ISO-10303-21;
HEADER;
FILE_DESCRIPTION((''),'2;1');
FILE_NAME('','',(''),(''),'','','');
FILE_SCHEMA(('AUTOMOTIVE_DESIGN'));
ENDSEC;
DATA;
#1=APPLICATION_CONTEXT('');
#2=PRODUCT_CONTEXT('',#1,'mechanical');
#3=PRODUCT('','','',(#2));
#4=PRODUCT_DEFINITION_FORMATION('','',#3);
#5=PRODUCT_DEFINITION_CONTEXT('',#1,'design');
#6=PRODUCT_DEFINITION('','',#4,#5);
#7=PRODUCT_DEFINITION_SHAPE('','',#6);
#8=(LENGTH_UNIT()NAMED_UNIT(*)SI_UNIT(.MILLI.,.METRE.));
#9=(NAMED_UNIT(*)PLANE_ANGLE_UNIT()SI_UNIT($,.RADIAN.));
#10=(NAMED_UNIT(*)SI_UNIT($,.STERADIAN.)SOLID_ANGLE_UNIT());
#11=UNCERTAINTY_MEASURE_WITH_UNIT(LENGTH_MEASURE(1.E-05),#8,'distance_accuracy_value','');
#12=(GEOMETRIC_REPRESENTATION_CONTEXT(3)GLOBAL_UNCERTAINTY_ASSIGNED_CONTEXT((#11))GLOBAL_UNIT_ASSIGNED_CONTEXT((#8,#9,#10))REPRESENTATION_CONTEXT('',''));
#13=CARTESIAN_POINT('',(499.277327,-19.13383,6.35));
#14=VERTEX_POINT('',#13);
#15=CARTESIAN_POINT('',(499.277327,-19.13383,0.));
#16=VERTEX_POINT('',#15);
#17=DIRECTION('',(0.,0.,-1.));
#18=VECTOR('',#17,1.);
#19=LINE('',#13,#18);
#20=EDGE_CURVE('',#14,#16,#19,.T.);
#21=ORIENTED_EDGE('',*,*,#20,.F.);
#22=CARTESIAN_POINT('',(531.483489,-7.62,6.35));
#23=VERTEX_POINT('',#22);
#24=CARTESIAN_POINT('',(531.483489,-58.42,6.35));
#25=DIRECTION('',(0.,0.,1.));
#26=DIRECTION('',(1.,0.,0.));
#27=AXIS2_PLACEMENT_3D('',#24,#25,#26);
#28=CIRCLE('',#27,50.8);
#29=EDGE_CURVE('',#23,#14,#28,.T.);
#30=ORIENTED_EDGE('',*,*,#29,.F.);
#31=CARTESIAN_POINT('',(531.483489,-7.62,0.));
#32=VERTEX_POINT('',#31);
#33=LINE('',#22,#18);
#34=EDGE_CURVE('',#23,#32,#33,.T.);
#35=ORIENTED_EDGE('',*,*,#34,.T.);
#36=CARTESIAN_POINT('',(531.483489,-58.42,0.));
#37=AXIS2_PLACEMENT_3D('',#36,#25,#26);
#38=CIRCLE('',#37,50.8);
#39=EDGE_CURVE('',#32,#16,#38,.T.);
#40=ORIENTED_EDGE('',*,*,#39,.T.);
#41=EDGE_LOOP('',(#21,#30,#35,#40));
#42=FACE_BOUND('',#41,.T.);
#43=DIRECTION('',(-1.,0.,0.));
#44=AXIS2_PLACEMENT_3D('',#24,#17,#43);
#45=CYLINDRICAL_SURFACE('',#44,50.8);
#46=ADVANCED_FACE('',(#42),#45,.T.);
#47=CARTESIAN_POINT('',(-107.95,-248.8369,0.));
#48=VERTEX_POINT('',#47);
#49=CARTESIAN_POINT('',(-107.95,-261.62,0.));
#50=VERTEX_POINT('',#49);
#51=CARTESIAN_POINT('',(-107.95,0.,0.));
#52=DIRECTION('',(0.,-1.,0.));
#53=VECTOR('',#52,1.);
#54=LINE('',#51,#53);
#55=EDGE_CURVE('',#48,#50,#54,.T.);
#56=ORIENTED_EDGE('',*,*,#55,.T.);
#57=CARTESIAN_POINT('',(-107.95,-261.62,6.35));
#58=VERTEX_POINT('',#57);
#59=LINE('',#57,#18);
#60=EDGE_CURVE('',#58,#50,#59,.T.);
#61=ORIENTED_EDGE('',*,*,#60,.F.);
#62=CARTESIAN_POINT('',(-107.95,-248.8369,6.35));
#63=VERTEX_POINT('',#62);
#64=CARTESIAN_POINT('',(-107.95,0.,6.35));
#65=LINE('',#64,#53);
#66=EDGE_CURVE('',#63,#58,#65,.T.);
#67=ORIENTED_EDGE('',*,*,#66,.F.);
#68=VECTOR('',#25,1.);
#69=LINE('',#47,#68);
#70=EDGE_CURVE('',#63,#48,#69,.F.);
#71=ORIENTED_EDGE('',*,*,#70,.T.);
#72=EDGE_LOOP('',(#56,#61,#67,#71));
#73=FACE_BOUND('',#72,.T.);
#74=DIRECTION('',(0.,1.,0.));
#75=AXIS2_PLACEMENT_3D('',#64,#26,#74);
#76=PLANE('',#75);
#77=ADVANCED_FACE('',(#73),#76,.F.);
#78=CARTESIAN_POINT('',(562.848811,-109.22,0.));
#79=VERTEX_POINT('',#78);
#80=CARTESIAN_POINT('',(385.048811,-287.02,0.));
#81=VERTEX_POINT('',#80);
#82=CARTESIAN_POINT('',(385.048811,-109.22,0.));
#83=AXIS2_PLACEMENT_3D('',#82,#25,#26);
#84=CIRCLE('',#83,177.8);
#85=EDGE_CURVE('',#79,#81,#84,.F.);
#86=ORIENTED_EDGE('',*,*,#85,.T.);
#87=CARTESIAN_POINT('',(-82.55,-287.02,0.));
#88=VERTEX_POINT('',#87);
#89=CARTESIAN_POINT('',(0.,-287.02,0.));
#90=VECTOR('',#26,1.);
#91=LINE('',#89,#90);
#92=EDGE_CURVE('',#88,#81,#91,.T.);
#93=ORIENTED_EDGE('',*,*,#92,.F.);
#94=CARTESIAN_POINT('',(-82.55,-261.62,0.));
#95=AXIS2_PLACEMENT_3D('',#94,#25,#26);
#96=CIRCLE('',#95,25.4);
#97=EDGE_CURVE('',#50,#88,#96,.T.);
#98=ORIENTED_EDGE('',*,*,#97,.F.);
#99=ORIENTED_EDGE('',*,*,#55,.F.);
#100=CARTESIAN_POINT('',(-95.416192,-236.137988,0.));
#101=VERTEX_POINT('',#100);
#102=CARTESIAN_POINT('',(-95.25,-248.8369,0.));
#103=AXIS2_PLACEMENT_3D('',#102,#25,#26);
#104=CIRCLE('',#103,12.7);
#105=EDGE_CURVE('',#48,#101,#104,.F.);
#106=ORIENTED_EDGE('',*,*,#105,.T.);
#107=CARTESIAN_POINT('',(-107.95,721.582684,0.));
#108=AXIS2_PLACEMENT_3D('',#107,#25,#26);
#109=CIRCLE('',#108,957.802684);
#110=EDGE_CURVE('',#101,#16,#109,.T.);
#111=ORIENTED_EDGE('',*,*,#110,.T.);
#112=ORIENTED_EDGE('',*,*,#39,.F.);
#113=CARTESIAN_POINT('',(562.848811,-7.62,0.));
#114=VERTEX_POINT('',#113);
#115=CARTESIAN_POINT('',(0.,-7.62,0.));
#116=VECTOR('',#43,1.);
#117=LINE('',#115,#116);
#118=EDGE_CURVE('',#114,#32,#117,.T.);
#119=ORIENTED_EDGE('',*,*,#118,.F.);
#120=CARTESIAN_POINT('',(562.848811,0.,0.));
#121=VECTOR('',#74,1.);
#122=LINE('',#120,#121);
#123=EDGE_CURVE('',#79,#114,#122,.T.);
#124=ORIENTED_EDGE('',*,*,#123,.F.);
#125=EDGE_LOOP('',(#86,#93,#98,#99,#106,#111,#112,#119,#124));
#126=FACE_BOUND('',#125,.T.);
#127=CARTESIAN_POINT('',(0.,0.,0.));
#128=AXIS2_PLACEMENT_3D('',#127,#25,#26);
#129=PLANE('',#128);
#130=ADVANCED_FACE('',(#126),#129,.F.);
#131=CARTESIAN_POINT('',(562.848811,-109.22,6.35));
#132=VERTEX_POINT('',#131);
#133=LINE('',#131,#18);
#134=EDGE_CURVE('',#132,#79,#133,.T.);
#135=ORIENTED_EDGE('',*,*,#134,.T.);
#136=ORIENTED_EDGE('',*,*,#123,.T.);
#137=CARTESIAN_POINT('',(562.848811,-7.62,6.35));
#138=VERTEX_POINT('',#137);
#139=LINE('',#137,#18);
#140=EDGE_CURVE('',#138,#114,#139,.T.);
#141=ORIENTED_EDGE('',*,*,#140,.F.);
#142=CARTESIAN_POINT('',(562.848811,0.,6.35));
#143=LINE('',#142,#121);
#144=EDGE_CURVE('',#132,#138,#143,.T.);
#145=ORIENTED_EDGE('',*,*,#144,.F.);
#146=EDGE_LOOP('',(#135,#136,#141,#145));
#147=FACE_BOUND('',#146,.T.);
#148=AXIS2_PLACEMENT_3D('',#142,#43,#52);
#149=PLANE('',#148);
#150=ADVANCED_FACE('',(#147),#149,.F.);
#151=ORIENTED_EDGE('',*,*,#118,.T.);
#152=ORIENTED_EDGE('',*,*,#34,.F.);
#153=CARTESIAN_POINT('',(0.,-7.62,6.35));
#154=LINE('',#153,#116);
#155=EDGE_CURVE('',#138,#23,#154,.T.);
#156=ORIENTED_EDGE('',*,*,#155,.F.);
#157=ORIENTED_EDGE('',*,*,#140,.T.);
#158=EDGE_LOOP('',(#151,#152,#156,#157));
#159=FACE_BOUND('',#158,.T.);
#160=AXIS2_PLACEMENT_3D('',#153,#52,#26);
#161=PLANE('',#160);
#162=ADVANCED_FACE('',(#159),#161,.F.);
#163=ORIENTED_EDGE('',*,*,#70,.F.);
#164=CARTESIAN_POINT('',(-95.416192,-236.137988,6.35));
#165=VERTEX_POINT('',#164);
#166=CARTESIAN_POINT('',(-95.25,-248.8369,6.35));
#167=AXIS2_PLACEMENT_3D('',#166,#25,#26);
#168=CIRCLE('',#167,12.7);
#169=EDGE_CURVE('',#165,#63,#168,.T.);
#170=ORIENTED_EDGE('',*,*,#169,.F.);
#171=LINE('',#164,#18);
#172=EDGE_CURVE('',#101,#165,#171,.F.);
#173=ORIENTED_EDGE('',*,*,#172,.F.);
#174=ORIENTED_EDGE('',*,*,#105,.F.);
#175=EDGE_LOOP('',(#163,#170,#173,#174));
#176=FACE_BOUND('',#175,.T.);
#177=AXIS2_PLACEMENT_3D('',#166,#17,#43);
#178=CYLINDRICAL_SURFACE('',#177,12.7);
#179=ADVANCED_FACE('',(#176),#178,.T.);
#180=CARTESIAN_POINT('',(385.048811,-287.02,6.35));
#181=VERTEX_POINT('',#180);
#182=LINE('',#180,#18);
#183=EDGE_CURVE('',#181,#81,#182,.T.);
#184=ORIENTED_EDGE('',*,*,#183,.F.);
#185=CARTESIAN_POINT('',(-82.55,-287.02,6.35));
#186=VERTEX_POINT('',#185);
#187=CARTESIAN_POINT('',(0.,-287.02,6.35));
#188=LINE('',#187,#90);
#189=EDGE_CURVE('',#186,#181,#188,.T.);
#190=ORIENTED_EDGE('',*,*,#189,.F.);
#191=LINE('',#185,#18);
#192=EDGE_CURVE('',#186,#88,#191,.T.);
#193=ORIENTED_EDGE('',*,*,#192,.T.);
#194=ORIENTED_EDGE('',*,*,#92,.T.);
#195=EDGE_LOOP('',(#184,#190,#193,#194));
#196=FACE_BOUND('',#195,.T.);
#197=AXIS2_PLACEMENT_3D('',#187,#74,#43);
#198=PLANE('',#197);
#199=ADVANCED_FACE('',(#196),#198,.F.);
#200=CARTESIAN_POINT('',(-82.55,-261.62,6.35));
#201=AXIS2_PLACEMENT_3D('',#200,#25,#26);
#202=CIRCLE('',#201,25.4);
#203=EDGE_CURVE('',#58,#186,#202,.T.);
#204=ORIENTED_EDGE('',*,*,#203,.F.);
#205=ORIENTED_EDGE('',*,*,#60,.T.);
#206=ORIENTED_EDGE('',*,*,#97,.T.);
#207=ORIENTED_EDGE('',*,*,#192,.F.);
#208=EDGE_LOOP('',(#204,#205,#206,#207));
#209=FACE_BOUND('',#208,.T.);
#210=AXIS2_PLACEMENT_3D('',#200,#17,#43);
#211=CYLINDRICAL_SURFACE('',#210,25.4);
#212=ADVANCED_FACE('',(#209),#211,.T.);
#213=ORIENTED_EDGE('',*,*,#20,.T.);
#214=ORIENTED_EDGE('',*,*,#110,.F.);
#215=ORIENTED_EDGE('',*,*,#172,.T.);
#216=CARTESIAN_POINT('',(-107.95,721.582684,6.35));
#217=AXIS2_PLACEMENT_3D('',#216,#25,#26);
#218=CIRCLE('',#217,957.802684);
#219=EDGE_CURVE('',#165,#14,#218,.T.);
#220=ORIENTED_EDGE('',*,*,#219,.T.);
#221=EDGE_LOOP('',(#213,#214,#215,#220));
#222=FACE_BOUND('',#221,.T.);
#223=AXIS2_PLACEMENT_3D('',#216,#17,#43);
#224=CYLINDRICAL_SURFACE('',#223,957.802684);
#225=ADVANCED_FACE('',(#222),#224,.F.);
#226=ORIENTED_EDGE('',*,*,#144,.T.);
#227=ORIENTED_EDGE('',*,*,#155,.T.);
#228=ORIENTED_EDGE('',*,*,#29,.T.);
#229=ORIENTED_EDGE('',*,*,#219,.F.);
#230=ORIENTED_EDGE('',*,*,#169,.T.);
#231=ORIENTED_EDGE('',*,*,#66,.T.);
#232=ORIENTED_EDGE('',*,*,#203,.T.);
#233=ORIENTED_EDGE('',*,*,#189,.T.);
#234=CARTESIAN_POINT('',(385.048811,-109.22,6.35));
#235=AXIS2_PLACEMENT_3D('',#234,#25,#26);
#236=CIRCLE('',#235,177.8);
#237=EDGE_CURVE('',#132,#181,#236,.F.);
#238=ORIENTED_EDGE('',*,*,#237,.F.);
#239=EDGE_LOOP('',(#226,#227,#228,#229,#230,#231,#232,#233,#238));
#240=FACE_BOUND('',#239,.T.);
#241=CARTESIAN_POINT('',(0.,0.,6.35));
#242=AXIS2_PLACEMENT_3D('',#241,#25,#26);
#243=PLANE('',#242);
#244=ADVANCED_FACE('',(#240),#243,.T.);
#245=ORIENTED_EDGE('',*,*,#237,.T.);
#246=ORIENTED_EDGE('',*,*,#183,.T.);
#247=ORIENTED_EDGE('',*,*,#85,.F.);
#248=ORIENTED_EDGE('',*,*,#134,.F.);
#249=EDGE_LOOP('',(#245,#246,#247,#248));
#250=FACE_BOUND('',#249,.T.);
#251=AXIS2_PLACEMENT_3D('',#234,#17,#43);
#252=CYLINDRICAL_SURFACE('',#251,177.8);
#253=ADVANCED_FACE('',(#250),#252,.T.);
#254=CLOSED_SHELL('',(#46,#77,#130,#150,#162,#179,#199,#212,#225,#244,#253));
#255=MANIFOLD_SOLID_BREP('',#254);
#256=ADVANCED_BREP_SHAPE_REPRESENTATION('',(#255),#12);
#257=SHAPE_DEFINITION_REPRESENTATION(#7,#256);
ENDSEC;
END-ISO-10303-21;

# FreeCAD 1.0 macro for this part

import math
import FreeCAD as App
import Part
import Sketcher
Q = App.Units.Quantity


def edges_at(feature, points):
    """Names of the edges that pass closest to the given points."""
    edges = feature.Shape.Edges
    near = lambda p: min(range(len(edges)), key=lambda i: edges[i].distToShape(Part.Vertex(*p))[0])
    return sorted({f"Edge{near(p) + 1}" for p in points})

doc = App.newDocument("Part")
body = doc.addObject("PartDesign::Body", "Body")

# Sketch on XY plane
sketch1 = doc.addObject("Sketcher::SketchObject", "Sketch")
body.addObject(sketch1)
sketch1.AttachmentSupport = (doc.XY_Plane, [""])
sketch1.MapMode = "FlatFace"
sketch1.addGeometry(Part.LineSegment(App.Vector(-108, -236, 0), App.Vector(-108, -262, 0)), False)
sketch1.addGeometry(Part.ArcOfCircle(Part.Circle(App.Vector(-83, -262, 0), App.Vector(0, 0, 1), 25), math.radians(180), math.radians(270)), False)
sketch1.addGeometry(Part.LineSegment(App.Vector(-83, -287, 0), App.Vector(385, -287, 0)), False)
sketch1.addGeometry(Part.ArcOfCircle(Part.Circle(App.Vector(385, -109, 0), App.Vector(0, 0, 1), 178), math.radians(-90), math.radians(0)), False)
sketch1.addGeometry(Part.LineSegment(App.Vector(563, -109, 0), App.Vector(563, -8, 0)), False)
sketch1.addGeometry(Part.LineSegment(App.Vector(563, -8, 0), App.Vector(531, -8, 0)), False)
sketch1.addGeometry(Part.ArcOfCircle(Part.Circle(App.Vector(531, -58, 0), App.Vector(0, 0, 1), 51), math.radians(90), math.radians(129)), False)
sketch1.addGeometry(Part.ArcOfCircle(Part.Circle(App.Vector(-108, 722, 0), App.Vector(0, 0, 1), 958), math.radians(-90), math.radians(-51)), False)
sketch1.addConstraint(Sketcher.Constraint("Tangent", 0, 2, 1, 1))
sketch1.addConstraint(Sketcher.Constraint("Tangent", 1, 2, 2, 1))
sketch1.addConstraint(Sketcher.Constraint("Tangent", 2, 2, 3, 1))
sketch1.addConstraint(Sketcher.Constraint("Tangent", 3, 2, 4, 1))
sketch1.addConstraint(Sketcher.Constraint("Coincident", 4, 2, 5, 1))
sketch1.addConstraint(Sketcher.Constraint("Tangent", 5, 2, 6, 1))
sketch1.addConstraint(Sketcher.Constraint("Tangent", 6, 2, 7, 2))
sketch1.addConstraint(Sketcher.Constraint("Coincident", 7, 1, 0, 1))
sketch1.addConstraint(Sketcher.Constraint("Vertical", 0))
sketch1.addConstraint(Sketcher.Constraint("Horizontal", 2))
sketch1.addConstraint(Sketcher.Constraint("Vertical", 4))
sketch1.addConstraint(Sketcher.Constraint("Horizontal", 5))
sketch1.addConstraint(Sketcher.Constraint("Vertical", 7, 3, 0, 2))
sketch1.addConstraint(Sketcher.Constraint("Radius", 1, Q("1 in")))
sketch1.addConstraint(Sketcher.Constraint("Radius", 3, Q("7 in")))
sketch1.addConstraint(Sketcher.Constraint("Radius", 6, Q("2 in")))
sketch1.addConstraint(Sketcher.Constraint("DistanceY", 0, 2, 0, 1, Q("1 in")))
sketch1.addConstraint(Sketcher.Constraint("DistanceY", 4, 1, 4, 2, Q("4 in")))
sketch1.addConstraint(Sketcher.Constraint("DistanceY", 1, 3, -1, 1, Q("10.3 in")))
sketch1.addConstraint(Sketcher.Constraint("DistanceX", 1, 3, -1, 1, Q("3.25 in")))
sketch1.addConstraint(Sketcher.Constraint("Radius", 7, 957.802684))
sketch1.addConstraint(Sketcher.Constraint("DistanceX", 2, 1, 2, 2, 467.598811))
pad1 = doc.addObject("PartDesign::Pad", "Pad")
body.addObject(pad1)
pad1.Profile = sketch1
pad1.Length = Q("0.25 in")
doc.recompute()

fillet = doc.addObject("PartDesign::Fillet", "Fillet")
body.addObject(fillet)
fillet.Base = (pad1, edges_at(pad1, [(-107.95, -236.22, 3.175)]))
fillet.Radius = Q("0.5 in")

doc.recompute()
